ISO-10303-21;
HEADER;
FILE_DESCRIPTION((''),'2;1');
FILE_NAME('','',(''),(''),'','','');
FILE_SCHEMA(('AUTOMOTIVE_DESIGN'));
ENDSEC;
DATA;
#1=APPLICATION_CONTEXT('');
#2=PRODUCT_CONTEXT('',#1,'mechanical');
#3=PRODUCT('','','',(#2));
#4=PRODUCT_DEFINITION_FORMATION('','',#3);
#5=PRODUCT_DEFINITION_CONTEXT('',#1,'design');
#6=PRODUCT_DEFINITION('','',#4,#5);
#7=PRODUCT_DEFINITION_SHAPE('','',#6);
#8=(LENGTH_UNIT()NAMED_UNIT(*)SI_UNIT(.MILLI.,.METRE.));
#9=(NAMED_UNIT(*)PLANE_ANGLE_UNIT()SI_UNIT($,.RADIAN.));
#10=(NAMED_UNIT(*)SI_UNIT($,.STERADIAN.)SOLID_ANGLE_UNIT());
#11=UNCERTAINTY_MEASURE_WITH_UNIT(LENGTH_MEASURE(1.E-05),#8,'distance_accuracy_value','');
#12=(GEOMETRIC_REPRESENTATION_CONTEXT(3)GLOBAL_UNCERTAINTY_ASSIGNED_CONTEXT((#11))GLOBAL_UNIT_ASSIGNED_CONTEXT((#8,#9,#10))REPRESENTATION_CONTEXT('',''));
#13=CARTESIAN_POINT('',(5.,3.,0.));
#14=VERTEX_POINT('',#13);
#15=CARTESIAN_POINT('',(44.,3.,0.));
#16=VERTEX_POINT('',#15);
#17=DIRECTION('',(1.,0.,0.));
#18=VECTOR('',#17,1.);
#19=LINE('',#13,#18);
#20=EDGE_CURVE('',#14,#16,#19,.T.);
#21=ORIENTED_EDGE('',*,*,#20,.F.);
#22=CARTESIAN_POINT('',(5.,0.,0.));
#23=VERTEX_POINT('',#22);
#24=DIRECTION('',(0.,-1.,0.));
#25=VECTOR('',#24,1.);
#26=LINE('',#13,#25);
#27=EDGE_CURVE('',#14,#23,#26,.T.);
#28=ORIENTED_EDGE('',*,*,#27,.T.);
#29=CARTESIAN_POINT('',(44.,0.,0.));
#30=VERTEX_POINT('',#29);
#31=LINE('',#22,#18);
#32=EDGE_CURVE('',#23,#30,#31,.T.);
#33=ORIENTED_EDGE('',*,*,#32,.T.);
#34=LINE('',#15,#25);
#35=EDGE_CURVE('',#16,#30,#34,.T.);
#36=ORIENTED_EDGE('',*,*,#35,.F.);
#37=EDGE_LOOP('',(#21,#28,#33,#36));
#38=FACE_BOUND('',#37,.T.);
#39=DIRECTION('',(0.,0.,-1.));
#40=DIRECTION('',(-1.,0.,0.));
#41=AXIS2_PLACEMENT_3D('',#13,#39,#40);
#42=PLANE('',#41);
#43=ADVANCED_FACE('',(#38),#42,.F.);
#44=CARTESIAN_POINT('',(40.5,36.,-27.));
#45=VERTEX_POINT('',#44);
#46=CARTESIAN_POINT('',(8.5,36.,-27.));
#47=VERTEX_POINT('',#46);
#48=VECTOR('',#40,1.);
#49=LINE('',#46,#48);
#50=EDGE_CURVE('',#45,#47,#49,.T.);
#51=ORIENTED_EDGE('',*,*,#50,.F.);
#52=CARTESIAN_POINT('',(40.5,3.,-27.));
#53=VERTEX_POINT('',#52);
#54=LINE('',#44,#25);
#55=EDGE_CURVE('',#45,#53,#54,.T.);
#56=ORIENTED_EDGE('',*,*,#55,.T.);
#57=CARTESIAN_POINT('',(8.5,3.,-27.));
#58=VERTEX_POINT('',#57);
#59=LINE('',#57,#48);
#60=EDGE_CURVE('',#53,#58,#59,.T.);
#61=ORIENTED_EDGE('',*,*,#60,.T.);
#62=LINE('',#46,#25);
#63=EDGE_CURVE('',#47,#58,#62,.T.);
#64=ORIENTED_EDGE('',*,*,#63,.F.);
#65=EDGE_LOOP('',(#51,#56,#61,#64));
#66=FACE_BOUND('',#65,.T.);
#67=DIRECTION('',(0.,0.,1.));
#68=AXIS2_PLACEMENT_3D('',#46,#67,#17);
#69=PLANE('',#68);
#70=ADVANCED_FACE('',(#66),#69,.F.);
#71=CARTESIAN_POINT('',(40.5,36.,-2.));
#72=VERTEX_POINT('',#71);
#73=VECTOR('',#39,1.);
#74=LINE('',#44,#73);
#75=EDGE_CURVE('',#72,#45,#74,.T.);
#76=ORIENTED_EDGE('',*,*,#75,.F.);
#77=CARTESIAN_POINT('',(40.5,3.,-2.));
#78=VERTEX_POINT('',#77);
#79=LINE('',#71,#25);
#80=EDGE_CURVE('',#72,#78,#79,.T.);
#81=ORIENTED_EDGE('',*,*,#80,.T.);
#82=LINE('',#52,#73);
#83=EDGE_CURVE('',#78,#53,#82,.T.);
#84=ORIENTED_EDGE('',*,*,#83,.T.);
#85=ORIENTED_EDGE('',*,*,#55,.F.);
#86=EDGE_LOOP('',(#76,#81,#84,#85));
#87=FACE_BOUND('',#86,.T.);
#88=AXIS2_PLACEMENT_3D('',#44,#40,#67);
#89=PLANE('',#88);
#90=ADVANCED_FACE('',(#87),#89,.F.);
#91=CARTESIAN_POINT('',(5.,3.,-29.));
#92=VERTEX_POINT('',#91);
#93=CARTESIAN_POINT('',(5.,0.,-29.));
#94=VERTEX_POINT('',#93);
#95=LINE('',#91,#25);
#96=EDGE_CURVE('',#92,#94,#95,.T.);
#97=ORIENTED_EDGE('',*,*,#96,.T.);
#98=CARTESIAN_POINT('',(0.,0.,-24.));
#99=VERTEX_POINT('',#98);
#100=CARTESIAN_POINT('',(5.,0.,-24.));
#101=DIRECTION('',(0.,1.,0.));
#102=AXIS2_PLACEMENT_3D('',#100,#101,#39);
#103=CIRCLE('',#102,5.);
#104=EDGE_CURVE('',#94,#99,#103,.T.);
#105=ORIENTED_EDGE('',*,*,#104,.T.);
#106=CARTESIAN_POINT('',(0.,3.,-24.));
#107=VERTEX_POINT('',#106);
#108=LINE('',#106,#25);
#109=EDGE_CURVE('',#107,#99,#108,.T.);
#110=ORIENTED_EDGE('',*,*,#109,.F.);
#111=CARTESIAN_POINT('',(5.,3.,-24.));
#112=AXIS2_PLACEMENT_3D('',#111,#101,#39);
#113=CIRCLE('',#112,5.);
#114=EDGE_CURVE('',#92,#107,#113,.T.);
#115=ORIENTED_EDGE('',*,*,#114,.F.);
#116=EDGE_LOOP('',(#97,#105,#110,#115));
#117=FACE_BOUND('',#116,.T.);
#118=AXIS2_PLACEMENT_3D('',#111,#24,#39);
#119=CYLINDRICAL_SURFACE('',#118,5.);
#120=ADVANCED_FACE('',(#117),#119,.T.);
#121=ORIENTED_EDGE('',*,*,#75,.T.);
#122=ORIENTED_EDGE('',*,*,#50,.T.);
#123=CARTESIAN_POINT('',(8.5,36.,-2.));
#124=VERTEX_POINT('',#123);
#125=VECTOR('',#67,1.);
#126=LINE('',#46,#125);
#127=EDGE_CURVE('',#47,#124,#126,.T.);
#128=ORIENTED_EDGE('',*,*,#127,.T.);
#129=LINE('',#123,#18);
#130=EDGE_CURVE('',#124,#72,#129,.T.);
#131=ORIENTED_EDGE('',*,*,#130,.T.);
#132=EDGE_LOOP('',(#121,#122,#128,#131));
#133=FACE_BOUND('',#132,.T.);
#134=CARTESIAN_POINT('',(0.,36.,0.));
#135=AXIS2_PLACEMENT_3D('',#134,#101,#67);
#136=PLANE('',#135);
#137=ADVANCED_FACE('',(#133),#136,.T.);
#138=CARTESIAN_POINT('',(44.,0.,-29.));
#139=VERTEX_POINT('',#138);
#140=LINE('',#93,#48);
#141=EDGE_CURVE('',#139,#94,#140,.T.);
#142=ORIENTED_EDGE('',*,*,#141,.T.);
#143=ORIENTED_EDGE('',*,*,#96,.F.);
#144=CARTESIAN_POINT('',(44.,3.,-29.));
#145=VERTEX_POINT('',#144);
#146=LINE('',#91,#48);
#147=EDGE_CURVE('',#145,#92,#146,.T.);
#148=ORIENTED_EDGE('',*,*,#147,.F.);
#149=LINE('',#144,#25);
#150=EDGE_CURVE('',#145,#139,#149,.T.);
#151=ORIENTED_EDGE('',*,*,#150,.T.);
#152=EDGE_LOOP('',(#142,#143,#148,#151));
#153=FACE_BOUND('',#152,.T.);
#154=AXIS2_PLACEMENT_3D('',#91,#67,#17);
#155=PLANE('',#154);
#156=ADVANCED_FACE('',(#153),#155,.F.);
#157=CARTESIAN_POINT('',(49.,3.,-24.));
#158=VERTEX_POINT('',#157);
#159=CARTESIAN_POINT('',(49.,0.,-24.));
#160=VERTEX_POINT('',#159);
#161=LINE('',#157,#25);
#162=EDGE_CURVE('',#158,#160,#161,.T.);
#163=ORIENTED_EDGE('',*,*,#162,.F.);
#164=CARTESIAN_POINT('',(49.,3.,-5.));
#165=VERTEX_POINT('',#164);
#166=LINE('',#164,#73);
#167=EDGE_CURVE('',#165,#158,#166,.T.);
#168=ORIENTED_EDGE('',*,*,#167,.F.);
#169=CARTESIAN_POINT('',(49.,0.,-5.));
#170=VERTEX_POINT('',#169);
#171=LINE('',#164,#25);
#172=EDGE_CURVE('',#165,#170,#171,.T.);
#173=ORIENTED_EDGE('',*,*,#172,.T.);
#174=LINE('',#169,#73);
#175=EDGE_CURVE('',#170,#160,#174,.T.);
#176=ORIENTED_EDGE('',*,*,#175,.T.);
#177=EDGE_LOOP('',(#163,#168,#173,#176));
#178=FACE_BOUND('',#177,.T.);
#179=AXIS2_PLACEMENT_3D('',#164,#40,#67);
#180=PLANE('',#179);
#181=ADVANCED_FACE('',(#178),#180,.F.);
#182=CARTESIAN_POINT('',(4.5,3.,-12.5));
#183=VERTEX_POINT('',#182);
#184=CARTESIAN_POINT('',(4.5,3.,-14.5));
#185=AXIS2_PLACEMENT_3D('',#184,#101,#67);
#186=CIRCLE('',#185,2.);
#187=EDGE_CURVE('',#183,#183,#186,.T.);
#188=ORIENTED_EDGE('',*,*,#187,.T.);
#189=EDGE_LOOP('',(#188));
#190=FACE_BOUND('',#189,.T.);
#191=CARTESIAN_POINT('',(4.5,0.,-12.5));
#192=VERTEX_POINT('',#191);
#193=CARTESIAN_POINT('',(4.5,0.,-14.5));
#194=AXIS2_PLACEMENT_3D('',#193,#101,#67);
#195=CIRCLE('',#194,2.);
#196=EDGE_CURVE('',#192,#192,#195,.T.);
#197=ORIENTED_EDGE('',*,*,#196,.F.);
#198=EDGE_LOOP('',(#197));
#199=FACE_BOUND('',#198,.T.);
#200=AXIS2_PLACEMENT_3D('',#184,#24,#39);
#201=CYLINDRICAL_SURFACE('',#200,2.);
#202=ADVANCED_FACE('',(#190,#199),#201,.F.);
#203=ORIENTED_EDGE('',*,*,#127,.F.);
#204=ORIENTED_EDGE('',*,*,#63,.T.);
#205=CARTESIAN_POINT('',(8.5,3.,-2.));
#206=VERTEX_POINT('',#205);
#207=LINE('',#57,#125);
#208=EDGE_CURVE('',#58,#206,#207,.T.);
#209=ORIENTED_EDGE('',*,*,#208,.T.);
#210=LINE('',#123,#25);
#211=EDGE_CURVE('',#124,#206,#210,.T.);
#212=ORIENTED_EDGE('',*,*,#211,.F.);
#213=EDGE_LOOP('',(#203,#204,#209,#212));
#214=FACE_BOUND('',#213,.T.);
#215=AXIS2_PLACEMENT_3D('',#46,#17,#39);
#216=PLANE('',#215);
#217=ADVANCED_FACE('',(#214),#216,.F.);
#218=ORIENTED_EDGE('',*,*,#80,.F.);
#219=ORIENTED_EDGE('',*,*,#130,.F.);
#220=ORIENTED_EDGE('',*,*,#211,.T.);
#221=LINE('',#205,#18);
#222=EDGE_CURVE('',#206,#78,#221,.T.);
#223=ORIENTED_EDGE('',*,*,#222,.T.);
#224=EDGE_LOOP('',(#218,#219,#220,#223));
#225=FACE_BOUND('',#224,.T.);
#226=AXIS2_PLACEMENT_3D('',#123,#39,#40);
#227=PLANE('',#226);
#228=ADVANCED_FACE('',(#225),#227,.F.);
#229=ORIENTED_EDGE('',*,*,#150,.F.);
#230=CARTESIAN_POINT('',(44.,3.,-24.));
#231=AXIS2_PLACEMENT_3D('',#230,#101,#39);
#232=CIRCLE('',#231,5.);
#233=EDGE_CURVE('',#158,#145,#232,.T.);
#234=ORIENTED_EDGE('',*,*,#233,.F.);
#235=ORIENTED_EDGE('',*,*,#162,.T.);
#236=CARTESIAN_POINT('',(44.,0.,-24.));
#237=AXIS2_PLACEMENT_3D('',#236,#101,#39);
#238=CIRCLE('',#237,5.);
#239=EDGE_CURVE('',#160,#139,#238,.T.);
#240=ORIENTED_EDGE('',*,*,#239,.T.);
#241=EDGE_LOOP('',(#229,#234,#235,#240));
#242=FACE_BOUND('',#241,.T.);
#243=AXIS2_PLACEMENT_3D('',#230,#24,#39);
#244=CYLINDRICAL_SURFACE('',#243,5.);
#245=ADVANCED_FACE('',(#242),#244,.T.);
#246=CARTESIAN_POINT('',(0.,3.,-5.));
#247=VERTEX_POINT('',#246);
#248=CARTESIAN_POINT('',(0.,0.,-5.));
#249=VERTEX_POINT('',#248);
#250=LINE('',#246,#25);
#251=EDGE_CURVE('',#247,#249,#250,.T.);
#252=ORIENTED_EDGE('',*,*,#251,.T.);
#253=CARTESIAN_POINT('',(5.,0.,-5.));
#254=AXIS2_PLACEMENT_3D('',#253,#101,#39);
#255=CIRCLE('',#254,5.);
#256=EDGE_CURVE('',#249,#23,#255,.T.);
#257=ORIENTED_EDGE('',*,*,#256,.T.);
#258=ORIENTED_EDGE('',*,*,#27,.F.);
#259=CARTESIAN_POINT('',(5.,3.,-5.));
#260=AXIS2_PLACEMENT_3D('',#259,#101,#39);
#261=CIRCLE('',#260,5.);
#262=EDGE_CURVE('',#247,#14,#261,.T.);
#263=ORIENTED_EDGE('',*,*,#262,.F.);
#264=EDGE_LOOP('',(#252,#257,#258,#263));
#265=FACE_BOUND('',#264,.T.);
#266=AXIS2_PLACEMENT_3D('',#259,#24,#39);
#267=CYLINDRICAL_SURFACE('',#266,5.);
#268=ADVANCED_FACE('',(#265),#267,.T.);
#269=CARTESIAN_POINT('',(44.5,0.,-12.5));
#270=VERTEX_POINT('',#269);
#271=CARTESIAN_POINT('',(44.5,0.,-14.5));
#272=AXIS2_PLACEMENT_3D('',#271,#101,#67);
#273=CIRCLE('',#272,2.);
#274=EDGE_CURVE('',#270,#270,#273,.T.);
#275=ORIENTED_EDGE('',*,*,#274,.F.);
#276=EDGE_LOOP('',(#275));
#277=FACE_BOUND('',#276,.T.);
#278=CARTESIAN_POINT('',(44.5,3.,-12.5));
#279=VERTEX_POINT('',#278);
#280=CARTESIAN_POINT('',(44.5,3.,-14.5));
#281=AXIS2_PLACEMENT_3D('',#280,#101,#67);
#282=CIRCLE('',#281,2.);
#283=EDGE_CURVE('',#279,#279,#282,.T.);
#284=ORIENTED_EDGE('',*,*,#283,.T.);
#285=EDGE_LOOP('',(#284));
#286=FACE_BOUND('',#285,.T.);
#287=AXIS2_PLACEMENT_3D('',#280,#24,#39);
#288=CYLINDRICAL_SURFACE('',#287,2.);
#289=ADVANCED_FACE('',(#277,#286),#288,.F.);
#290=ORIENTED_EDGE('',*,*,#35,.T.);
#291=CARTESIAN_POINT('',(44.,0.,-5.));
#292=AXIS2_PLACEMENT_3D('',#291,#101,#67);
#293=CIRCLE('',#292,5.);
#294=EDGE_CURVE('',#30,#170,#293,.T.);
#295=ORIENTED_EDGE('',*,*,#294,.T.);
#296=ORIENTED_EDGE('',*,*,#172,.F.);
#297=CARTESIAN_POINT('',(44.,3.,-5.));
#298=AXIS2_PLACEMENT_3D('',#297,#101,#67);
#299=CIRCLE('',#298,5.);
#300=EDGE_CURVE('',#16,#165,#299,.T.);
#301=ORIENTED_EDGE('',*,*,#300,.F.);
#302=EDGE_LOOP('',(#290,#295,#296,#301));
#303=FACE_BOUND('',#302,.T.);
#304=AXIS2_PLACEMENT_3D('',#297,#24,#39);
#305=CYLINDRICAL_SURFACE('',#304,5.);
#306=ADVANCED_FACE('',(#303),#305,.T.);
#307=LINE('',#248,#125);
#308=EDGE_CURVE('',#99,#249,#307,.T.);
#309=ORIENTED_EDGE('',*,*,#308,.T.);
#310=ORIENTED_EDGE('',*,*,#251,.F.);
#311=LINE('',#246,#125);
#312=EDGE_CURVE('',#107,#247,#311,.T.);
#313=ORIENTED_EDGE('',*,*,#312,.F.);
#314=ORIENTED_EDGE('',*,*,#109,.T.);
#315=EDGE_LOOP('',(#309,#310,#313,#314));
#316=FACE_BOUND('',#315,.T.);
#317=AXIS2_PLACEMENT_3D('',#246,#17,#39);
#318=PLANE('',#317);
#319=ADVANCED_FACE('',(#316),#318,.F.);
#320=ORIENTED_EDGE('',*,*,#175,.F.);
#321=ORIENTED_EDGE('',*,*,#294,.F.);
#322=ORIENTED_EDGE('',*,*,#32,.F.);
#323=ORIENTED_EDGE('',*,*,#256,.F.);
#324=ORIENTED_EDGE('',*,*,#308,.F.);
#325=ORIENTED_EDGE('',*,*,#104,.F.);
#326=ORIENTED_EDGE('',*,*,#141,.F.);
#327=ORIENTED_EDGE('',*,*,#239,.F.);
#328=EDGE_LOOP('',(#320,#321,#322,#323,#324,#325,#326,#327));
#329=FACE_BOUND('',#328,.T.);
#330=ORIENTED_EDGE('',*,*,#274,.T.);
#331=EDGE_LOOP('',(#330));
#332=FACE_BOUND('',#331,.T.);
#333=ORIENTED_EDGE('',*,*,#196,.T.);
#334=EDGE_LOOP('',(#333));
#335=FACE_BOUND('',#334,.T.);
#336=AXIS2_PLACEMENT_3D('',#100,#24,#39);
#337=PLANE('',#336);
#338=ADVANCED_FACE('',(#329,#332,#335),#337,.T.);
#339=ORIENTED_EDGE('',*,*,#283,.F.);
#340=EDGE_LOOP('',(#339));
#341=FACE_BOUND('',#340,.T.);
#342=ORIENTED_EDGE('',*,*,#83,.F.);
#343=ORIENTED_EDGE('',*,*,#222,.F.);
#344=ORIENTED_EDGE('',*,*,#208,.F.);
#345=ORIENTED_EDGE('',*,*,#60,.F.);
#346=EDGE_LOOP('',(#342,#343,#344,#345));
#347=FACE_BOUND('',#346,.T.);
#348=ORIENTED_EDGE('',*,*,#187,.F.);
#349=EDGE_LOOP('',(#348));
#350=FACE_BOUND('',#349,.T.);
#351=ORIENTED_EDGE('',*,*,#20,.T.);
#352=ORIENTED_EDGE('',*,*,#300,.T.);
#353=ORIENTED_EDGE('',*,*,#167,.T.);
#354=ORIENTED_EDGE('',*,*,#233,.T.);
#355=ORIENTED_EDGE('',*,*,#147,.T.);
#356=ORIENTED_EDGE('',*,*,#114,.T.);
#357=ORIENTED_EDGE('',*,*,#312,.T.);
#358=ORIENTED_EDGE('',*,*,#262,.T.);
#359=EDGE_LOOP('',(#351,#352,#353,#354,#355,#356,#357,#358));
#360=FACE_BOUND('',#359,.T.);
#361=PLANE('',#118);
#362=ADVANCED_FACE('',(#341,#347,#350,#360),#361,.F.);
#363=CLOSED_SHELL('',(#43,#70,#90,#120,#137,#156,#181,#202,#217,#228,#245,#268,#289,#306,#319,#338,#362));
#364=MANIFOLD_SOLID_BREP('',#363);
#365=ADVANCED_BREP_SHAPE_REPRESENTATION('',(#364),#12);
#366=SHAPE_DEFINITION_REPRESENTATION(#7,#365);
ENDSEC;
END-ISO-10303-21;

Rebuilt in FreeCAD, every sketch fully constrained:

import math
import FreeCAD as App
import Part
import Sketcher

V = App.Vector
Q = App.Units.Quantity


def add_polygon(sketch, points):
    """Adds a closed chain of lines whose ends are joined by coincident constraints."""
    first, n = sketch.GeometryCount, len(points)
    for a, b in zip(points, points[1:] + points[:1]):
        sketch.addGeometry(Part.LineSegment(App.Vector(*a, 0), App.Vector(*b, 0)), False)
    for i in range(n):
        sketch.addConstraint(Sketcher.Constraint("Coincident", first + i, 2, first + (i + 1) % n, 1))

doc = App.newDocument("Part")
params = doc.addObject("Spreadsheet::Sheet", "Params")
for row, (alias, value) in enumerate([
    ("sketch1_diameter", "4 mm"),
    ("sketch1_radius", "5 mm"),
    ("sketch1_width", "39 mm"),
    ("sketch1_height", "19 mm"),
    ("pad1_length", "3 mm"),
    ("sketch2_width", "32 mm"),
    ("sketch2_height", "25 mm"),
    ("pad2_length", "33 mm"),
], start=1):
    params.set(f"A{row}", alias)
    params.set(f"B{row}", "=" + value)
    params.setAlias(f"B{row}", alias)

body = doc.addObject("PartDesign::Body", "Body")

# Sketch on XZ plane
sketch1 = body.newObject("Sketcher::SketchObject", "Sketch")
sketch1.AttachmentSupport = (doc.getObject("XZ_Plane"), [""])
sketch1.MapMode = "FlatFace"
sketch1.addGeometry([
    Part.LineSegment(V(5, 0, 0), V(44, 0, 0)),  # 0
    Part.ArcOfCircle(Part.Circle(V(44, -5, 0), V(0, 0, 1), 5), math.radians(0), math.radians(90)),  # 1
    Part.LineSegment(V(49, -5, 0), V(49, -24, 0)),  # 2
    Part.ArcOfCircle(Part.Circle(V(44, -24, 0), V(0, 0, 1), 5), math.radians(-90), math.radians(0)),  # 3
    Part.LineSegment(V(44, -29, 0), V(5, -29, 0)),  # 4
    Part.ArcOfCircle(Part.Circle(V(5, -24, 0), V(0, 0, 1), 5), math.radians(180), math.radians(270)),  # 5
    Part.LineSegment(V(0, -24, 0), V(0, -5, 0)),  # 6
    Part.ArcOfCircle(Part.Circle(V(5, -5, 0), V(0, 0, 1), 5), math.radians(90), math.radians(180)),  # 7
    Part.Circle(V(4.5, -14.5, 0), V(0, 0, 1), 2),  # 8
    Part.Circle(V(44.5, -14.5, 0), V(0, 0, 1), 2),  # 9
], False)
sketch1.addConstraint([
    Sketcher.Constraint("Tangent", 0, 2, 1, 2),
    Sketcher.Constraint("Tangent", 1, 1, 2, 1),
    Sketcher.Constraint("Tangent", 2, 2, 3, 2),
    Sketcher.Constraint("Tangent", 3, 1, 4, 1),
    Sketcher.Constraint("Tangent", 4, 2, 5, 2),
    Sketcher.Constraint("Tangent", 5, 1, 6, 1),
    Sketcher.Constraint("Tangent", 6, 2, 7, 2),
    Sketcher.Constraint("Tangent", 7, 1, 0, 1),
    Sketcher.Constraint("Horizontal", 0),
    Sketcher.Constraint("Vertical", 2),
    Sketcher.Constraint("Horizontal", 4),
    Sketcher.Constraint("Vertical", 6),
    Sketcher.Constraint("Equal", 1, 3),
    Sketcher.Constraint("Equal", 3, 5),
    Sketcher.Constraint("Equal", 5, 7),
    Sketcher.Constraint("Equal", 8, 9),
    Sketcher.Constraint("PointOnObject", 0, 2, -1),
    Sketcher.Constraint("PointOnObject", 5, 1, -2),
    Sketcher.Constraint("Horizontal", 8, 3, 9, 3),
    Sketcher.Constraint("Diameter", 8, Q("4 mm")),
    Sketcher.Constraint("Radius", 1, Q("5 mm")),
    Sketcher.Constraint("DistanceX", 0, 1, 0, 2, Q("39 mm")),
    Sketcher.Constraint("DistanceY", 2, 2, 2, 1, Q("19 mm")),
    Sketcher.Constraint("DistanceX", 8, 3, 9, 3, Q("40 mm")),
    Sketcher.Constraint("DistanceX", -1, 1, 8, 3, Q("4.5 mm")),
    Sketcher.Constraint("DistanceY", 8, 3, -1, 1, Q("14.5 mm")),
])
sketch1.setExpression("Constraints[19]", "Params.sketch1_diameter")
sketch1.setExpression("Constraints[20]", "Params.sketch1_radius")
sketch1.setExpression("Constraints[21]", "Params.sketch1_width")
sketch1.setExpression("Constraints[22]", "Params.sketch1_height")
pad1 = body.newObject("PartDesign::Pad", "Pad")
pad1.Profile = sketch1
pad1.setExpression("Length", "Params.pad1_length")
pad1.Reversed = True

# Sketch on XZ plane
sketch2 = body.newObject("Sketcher::SketchObject", "Sketch001")
sketch2.AttachmentSupport = (doc.getObject("XZ_Plane"), [""])
sketch2.MapMode = "FlatFace"
sketch2.AttachmentOffset = App.Placement(V(0, 0, -3), App.Rotation())
add_polygon(sketch2, [(8.5, -27), (8.5, -2), (40.5, -2), (40.5, -27)])  # lines 0-3
sketch2.addConstraint([
    Sketcher.Constraint("Vertical", 0),
    Sketcher.Constraint("Horizontal", 1),
    Sketcher.Constraint("Vertical", 2),
    Sketcher.Constraint("Horizontal", 3),
    Sketcher.Constraint("DistanceX", 1, 1, 1, 2, Q("32 mm")),
    Sketcher.Constraint("DistanceY", 0, 1, 0, 2, Q("25 mm")),
    Sketcher.Constraint("DistanceY", 0, 2, -1, 1, Q("2 mm")),
    Sketcher.Constraint("DistanceX", -1, 1, 0, 2, Q("8.5 mm")),
])
sketch2.setExpression("Constraints[8]", "Params.sketch2_width")
sketch2.setExpression("Constraints[9]", "Params.sketch2_height")
pad2 = body.newObject("PartDesign::Pad", "Pad001")
pad2.Profile = sketch2
pad2.setExpression("Length", "Params.pad2_length")
pad2.Reversed = True

doc.recompute()
